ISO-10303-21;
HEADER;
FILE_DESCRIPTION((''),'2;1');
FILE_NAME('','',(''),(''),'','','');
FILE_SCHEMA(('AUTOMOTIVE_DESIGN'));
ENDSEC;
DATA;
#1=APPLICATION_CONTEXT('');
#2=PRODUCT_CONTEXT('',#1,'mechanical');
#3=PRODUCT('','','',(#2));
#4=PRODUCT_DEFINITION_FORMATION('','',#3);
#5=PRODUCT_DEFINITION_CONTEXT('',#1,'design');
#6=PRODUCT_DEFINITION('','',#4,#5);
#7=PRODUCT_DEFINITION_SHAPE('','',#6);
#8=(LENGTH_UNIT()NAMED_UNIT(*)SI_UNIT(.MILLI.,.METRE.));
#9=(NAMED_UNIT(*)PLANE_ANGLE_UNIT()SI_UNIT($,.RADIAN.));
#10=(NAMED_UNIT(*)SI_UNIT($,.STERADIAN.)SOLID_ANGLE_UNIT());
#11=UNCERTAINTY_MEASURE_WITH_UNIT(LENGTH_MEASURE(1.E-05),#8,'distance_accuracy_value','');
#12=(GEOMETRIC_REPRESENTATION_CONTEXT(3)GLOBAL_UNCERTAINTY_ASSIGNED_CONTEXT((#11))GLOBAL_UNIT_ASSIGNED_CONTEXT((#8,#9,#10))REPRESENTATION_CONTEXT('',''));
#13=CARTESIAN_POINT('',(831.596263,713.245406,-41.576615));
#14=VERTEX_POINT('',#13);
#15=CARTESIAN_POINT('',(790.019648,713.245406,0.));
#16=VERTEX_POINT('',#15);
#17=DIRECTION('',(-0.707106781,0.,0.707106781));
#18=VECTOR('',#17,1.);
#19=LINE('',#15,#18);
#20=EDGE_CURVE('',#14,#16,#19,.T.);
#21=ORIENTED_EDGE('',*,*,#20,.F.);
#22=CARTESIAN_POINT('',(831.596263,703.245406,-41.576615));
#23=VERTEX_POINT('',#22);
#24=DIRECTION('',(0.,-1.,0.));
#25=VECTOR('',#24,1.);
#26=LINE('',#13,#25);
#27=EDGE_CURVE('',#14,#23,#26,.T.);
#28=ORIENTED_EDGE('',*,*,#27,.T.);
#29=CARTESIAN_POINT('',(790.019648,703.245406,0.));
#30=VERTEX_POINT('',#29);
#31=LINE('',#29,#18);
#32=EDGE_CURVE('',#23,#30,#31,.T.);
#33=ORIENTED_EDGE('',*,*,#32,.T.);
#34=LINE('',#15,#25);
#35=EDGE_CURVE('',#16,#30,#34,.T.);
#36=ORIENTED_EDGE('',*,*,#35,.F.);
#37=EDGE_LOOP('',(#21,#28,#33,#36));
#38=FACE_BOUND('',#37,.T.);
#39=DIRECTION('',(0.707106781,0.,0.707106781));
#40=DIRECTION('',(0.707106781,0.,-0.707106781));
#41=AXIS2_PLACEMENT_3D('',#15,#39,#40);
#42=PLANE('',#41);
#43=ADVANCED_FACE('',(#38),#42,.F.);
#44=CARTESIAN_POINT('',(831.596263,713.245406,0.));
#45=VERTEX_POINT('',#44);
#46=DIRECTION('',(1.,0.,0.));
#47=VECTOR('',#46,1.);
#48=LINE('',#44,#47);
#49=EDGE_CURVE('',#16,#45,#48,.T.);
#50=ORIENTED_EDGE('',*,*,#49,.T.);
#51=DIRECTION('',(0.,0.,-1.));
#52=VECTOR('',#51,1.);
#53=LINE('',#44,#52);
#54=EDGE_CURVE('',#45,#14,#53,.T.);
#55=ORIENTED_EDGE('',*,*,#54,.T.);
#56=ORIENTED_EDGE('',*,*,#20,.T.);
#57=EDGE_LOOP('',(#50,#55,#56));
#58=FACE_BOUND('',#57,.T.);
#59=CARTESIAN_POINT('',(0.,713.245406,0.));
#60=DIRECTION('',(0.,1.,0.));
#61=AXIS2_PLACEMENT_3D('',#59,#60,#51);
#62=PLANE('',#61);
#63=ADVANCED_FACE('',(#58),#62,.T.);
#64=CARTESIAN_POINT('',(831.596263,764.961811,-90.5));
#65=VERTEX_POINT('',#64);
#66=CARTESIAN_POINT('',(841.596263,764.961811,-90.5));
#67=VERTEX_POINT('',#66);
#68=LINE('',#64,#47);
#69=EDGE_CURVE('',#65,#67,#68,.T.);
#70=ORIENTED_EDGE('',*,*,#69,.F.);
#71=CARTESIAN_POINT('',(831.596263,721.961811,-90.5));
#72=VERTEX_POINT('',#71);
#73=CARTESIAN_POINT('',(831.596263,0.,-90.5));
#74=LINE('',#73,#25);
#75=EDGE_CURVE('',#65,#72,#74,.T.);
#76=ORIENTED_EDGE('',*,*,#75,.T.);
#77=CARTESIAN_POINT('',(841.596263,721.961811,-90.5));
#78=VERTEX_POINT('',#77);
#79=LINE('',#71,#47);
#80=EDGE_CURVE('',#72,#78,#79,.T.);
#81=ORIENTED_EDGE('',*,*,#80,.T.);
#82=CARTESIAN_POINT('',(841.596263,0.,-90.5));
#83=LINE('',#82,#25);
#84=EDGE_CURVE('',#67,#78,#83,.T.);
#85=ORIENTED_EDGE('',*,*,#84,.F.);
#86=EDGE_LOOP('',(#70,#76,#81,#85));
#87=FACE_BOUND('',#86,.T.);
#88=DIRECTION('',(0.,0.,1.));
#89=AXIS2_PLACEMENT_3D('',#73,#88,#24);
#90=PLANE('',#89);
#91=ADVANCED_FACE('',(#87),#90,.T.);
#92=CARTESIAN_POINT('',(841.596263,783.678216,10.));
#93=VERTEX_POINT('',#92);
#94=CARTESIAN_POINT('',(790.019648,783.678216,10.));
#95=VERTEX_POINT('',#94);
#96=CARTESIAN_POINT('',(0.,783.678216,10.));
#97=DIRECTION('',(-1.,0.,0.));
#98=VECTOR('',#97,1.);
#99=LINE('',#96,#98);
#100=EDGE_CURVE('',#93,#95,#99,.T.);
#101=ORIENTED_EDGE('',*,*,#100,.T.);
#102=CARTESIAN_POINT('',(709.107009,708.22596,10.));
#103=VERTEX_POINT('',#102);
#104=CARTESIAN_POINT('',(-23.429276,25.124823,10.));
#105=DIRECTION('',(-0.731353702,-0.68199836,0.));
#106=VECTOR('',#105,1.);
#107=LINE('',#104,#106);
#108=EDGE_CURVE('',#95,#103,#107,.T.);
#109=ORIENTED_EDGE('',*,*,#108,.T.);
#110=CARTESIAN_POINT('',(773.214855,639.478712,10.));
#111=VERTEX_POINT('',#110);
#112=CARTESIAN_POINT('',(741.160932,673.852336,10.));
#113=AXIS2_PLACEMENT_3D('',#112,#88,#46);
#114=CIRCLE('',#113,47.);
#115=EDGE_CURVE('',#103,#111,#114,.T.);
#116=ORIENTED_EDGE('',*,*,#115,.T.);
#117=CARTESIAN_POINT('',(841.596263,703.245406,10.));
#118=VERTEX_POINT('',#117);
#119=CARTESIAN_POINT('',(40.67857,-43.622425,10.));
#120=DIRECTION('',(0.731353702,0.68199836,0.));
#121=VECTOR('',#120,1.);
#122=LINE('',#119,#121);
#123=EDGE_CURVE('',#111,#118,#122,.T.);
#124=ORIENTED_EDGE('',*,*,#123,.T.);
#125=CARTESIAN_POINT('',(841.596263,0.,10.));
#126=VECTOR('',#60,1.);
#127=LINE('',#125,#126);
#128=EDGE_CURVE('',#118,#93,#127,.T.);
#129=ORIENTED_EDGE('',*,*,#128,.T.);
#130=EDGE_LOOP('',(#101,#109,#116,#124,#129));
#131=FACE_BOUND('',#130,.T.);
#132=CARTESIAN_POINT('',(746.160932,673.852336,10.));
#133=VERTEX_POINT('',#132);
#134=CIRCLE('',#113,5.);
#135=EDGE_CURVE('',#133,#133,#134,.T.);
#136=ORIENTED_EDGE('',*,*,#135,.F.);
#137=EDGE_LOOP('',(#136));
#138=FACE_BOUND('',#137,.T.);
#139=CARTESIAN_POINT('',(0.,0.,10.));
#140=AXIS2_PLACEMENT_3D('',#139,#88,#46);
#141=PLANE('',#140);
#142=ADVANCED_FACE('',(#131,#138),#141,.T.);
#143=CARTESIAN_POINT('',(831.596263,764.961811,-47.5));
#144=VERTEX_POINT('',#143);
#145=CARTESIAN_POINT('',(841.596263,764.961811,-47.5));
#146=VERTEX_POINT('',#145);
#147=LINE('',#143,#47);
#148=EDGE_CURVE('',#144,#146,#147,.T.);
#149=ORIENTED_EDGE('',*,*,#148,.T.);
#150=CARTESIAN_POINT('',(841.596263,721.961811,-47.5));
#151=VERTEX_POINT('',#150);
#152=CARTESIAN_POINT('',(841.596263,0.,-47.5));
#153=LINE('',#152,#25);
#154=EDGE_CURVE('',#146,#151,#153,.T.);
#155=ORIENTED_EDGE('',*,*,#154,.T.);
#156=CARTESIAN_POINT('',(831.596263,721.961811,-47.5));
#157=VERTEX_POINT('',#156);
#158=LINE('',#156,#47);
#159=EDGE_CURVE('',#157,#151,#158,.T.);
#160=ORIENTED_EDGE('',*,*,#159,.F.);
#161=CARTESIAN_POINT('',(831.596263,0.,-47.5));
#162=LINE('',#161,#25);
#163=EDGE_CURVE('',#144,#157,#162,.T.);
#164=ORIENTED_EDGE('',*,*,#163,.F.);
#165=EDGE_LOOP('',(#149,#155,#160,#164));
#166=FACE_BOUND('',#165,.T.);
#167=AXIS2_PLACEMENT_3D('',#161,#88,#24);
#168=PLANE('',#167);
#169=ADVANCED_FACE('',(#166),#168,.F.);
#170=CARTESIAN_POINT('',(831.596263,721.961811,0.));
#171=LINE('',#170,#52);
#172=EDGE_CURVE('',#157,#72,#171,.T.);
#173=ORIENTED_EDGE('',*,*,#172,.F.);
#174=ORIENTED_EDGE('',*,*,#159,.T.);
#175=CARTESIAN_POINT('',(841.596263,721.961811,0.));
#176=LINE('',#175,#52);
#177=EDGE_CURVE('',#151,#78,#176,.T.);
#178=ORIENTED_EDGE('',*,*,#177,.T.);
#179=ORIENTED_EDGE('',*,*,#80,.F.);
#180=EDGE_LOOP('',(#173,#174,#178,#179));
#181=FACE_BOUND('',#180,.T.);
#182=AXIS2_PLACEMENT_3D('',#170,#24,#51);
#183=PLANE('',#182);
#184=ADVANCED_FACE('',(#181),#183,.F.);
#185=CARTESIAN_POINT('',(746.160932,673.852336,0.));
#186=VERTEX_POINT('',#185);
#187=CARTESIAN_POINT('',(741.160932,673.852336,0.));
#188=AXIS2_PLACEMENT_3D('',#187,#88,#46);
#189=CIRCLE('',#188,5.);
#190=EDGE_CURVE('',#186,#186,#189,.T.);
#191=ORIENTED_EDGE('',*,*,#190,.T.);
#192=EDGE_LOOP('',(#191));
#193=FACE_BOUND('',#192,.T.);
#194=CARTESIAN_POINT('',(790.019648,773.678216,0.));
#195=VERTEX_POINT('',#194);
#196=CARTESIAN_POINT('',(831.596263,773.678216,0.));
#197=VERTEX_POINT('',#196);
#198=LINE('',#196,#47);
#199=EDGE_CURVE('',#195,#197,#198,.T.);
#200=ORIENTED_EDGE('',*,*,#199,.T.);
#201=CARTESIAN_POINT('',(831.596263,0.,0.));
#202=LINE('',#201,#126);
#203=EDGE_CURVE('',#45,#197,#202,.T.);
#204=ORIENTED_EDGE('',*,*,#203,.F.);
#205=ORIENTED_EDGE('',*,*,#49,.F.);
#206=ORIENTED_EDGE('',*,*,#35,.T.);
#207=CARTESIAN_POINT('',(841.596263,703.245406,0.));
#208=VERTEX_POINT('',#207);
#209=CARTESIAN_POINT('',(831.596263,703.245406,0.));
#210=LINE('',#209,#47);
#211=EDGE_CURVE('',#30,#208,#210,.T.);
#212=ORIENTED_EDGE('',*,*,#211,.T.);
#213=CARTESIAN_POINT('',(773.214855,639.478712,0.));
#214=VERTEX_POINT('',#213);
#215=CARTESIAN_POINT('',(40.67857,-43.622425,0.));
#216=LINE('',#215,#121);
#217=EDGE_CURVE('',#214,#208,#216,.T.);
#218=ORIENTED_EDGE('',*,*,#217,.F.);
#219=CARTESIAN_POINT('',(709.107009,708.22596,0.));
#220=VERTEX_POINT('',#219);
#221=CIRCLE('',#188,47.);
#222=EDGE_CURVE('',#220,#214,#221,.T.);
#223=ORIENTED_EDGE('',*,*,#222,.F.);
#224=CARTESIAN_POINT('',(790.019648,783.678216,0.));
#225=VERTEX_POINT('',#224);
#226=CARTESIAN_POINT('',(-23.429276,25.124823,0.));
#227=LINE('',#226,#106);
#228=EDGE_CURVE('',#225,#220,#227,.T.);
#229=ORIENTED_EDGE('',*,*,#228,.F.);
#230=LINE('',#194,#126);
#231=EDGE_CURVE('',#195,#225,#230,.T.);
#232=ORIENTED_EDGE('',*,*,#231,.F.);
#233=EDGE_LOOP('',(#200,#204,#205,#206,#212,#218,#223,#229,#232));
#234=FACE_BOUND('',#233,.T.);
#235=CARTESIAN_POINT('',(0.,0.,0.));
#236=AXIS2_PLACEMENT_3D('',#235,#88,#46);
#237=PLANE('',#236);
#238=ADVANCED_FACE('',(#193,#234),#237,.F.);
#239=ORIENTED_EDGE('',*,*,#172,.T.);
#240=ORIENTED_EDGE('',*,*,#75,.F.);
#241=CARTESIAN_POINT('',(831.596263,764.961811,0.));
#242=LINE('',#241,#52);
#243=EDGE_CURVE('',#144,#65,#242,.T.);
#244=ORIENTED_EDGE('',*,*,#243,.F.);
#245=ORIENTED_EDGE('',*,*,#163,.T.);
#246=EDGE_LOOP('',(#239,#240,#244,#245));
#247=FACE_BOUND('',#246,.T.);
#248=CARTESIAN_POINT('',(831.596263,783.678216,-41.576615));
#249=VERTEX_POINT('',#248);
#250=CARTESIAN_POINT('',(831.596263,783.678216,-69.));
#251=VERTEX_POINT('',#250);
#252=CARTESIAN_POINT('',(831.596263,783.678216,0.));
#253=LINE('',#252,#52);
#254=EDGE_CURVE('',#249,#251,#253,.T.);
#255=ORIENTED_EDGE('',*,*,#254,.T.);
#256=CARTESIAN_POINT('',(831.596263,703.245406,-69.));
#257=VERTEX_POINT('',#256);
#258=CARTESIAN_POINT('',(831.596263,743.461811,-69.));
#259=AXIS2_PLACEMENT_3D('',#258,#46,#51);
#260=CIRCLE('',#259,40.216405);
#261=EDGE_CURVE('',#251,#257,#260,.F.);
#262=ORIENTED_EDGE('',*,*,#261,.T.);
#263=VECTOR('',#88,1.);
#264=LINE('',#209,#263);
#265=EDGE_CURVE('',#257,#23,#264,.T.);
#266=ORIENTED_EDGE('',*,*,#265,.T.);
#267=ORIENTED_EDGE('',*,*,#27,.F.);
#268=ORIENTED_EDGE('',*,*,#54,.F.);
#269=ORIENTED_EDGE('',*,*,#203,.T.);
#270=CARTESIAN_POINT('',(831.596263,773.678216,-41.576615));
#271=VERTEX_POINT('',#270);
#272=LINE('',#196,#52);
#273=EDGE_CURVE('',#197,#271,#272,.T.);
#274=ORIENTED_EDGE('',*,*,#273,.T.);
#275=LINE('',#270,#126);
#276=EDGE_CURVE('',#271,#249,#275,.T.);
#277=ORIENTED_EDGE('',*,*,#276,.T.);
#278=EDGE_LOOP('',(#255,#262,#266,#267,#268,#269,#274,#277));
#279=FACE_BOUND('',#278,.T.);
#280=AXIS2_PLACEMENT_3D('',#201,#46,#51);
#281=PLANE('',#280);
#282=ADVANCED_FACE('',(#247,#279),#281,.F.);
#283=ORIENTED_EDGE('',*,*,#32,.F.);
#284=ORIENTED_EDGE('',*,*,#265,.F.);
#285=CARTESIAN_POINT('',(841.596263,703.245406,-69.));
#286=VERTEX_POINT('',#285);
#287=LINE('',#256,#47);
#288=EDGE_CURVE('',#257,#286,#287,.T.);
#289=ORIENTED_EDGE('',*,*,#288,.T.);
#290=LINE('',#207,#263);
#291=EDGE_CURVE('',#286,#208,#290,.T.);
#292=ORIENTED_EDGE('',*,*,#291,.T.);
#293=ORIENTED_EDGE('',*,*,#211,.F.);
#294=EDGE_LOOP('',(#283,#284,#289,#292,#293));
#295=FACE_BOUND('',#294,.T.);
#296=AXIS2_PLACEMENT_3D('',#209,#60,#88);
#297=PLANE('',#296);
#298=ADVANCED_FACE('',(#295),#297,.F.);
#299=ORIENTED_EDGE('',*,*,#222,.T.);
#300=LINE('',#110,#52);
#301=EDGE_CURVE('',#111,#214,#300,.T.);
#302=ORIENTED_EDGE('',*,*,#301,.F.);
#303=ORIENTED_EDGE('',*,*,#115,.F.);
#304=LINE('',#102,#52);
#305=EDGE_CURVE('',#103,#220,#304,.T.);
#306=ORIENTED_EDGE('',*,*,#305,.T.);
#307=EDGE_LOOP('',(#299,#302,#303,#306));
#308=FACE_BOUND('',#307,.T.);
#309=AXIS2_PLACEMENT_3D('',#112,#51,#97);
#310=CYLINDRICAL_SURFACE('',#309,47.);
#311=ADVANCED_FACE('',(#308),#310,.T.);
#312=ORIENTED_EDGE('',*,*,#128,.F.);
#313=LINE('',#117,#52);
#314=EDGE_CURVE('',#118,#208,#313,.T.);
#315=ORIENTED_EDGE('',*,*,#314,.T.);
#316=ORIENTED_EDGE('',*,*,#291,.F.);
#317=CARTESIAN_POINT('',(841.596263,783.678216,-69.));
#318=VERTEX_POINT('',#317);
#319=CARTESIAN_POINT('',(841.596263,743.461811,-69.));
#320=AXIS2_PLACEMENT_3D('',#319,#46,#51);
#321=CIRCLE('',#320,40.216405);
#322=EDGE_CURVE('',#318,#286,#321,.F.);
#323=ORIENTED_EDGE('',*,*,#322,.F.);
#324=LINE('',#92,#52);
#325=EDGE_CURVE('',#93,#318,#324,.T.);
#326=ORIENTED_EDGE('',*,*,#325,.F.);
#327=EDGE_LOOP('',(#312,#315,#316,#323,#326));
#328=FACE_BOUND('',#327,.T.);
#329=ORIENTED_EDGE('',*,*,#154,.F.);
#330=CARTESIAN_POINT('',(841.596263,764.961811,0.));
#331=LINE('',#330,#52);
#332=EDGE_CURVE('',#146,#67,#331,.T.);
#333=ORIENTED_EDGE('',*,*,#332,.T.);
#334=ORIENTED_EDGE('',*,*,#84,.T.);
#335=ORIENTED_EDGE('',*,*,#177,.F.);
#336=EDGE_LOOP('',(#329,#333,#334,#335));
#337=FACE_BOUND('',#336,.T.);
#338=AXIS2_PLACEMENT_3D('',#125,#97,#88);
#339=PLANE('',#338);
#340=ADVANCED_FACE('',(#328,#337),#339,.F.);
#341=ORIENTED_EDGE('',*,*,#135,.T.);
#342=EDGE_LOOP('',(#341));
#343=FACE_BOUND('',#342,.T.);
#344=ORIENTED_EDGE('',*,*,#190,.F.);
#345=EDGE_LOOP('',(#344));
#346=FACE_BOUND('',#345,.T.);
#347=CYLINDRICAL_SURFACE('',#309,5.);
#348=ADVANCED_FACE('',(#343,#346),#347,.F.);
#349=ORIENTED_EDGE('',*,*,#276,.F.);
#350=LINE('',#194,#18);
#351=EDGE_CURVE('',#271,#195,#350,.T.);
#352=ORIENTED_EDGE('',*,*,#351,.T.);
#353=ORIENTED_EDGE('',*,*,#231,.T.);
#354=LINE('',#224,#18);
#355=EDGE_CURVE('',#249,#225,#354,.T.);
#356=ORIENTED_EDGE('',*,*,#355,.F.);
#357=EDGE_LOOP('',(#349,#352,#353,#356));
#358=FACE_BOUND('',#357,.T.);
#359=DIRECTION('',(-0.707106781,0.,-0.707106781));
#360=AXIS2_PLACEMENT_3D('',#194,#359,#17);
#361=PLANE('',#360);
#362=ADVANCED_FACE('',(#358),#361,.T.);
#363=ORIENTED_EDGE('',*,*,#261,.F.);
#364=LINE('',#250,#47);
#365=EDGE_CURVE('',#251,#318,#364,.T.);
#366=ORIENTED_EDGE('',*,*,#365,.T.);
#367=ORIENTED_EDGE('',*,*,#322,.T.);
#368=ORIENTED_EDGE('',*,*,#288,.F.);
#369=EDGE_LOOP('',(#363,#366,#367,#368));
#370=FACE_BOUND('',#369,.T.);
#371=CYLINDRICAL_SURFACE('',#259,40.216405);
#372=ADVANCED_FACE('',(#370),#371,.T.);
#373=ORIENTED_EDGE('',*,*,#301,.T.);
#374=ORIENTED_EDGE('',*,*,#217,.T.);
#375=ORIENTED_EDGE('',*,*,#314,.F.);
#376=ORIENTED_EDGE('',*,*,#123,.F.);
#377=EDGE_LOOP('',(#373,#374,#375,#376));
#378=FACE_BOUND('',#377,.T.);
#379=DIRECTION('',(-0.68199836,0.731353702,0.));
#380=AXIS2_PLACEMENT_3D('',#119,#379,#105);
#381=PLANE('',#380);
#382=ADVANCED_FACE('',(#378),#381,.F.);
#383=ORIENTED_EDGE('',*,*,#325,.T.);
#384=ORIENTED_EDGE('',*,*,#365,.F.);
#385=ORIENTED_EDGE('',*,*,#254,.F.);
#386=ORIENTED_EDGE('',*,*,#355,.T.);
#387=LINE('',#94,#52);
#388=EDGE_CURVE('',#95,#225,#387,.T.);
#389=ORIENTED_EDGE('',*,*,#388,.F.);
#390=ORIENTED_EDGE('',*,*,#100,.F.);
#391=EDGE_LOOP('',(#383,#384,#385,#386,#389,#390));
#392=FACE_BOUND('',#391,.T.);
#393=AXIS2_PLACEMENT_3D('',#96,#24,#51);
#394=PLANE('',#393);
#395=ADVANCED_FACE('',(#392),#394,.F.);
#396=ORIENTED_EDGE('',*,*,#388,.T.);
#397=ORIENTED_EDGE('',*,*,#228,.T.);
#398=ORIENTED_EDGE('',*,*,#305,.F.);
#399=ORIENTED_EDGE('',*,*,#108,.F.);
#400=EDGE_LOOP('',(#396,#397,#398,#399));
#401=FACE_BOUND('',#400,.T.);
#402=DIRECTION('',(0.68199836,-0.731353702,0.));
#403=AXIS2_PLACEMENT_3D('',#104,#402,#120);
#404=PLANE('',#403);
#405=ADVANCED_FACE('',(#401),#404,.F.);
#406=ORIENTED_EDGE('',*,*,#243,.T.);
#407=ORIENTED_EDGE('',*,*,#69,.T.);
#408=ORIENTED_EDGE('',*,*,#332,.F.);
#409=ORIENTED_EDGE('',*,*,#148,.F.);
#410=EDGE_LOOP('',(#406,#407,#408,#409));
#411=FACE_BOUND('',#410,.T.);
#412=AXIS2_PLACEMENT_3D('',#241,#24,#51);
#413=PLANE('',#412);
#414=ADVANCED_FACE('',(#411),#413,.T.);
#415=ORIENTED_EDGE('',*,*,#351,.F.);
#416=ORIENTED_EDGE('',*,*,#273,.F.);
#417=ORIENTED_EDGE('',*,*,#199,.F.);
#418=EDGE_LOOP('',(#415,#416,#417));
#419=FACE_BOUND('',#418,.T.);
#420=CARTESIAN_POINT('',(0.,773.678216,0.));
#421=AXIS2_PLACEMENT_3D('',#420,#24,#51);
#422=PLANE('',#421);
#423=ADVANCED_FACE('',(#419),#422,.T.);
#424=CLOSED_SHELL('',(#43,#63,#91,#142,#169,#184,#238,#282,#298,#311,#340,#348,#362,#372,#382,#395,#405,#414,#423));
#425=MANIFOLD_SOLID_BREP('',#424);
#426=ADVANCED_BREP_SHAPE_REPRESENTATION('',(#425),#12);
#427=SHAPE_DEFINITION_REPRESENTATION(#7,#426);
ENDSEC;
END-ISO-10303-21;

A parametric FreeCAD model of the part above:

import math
import FreeCAD as App
import Part
import Sketcher

V = App.Vector
Q = App.Units.Quantity

doc = App.newDocument("Part")
body = doc.addObject("PartDesign::Body", "Body")

# Sketch on XY plane
sketch1 = body.newObject("Sketcher::SketchObject", "Sketch")
sketch1.AttachmentSupport = (doc.getObject("XY_Plane"), [""])
sketch1.MapMode = "FlatFace"
sketch1.addGeometry([
    Part.LineSegment(V(790.019648, 783.678216, 0), V(709.107009, 708.22596, 0)),  # 0
    Part.ArcOfCircle(Part.Circle(V(741.160932, 673.852336, 0), V(0, 0, 1), 47), math.radians(133), math.radians(313)),  # 1
    Part.LineSegment(V(773.214855, 639.478712, 0), V(841.596263, 703.245406, 0)),  # 2
    Part.LineSegment(V(841.596263, 703.245406, 0), V(841.596263, 783.678216, 0)),  # 3
    Part.LineSegment(V(841.596263, 783.678216, 0), V(790.019648, 783.678216, 0)),  # 4
    Part.Circle(V(741.160932, 673.852336, 0), V(0, 0, 1), 5),  # 5
], False)
sketch1.addConstraint([
    Sketcher.Constraint("Tangent", 0, 2, 1, 1),
    Sketcher.Constraint("Tangent", 1, 2, 2, 1),
    Sketcher.Constraint("Coincident", 2, 2, 3, 1),
    Sketcher.Constraint("Coincident", 3, 2, 4, 1),
    Sketcher.Constraint("Coincident", 4, 2, 0, 1),
    Sketcher.Constraint("Vertical", 3),
    Sketcher.Constraint("Horizontal", 4),
    Sketcher.Constraint("Coincident", 5, 3, 1, 3),
    Sketcher.Constraint("Parallel", 0, 2),
    Sketcher.Constraint("Diameter", 5, Q("10 mm")),
    Sketcher.Constraint("Radius", 1, Q("47 mm")),
    Sketcher.Constraint("Angle", 0, Q("-137 deg")),
    Sketcher.Constraint("DistanceY", 3, 1, 3, 2, Q("80.43281 mm")),
    Sketcher.Constraint("DistanceX", -1, 1, 0, 2, Q("709.107009 mm")),
    Sketcher.Constraint("DistanceY", -1, 1, 0, 2, Q("708.22596 mm")),
    Sketcher.Constraint("DistanceX", 1, 3, 2, 2, Q("100.43533 mm")),
])
pad1 = body.newObject("PartDesign::Pad", "Pad")
pad1.Profile = sketch1
pad1.Length = 10

# Sketch on YZ plane
sketch2 = body.newObject("Sketcher::SketchObject", "Sketch001")
sketch2.AttachmentSupport = (doc.getObject("YZ_Plane"), [""])
sketch2.MapMode = "FlatFace"
sketch2.AttachmentOffset = App.Placement(V(0, 0, 841.596263), App.Rotation())
sketch2.addGeometry([
    Part.LineSegment(V(783.678216, -69, 0), V(783.678216, 0, 0)),  # 0
    Part.LineSegment(V(783.678216, 0, 0), V(703.245406, 0, 0)),  # 1
    Part.LineSegment(V(703.245406, 0, 0), V(703.245406, -69, 0)),  # 2
    Part.ArcOfCircle(Part.Circle(V(743.461811, -69, 0), V(0, 0, 1), 40.216405), math.radians(180), math.radians(360)),  # 3
    Part.LineSegment(V(721.961811, -90.5, 0), V(721.961811, -47.5, 0)),  # 4
    Part.LineSegment(V(721.961811, -47.5, 0), V(764.961811, -47.5, 0)),  # 5
    Part.LineSegment(V(764.961811, -47.5, 0), V(764.961811, -90.5, 0)),  # 6
    Part.LineSegment(V(764.961811, -90.5, 0), V(721.961811, -90.5, 0)),  # 7
], False)
sketch2.addConstraint([
    Sketcher.Constraint("Coincident", 0, 2, 1, 1),
    Sketcher.Constraint("Coincident", 1, 2, 2, 1),
    Sketcher.Constraint("Tangent", 2, 2, 3, 1),
    Sketcher.Constraint("Tangent", 3, 2, 0, 1),
    Sketcher.Constraint("Coincident", 4, 2, 5, 1),
    Sketcher.Constraint("Coincident", 5, 2, 6, 1),
    Sketcher.Constraint("Coincident", 6, 2, 7, 1),
    Sketcher.Constraint("Coincident", 7, 2, 4, 1),
    Sketcher.Constraint("Vertical", 0),
    Sketcher.Constraint("Horizontal", 1),
    Sketcher.Constraint("Vertical", 2),
    Sketcher.Constraint("Vertical", 4),
    Sketcher.Constraint("Horizontal", 5),
    Sketcher.Constraint("Vertical", 6),
    Sketcher.Constraint("Horizontal", 7),
    Sketcher.Constraint("PointOnObject", 0, 2, -1),
    Sketcher.Constraint("Equal", 7, 4),
    Sketcher.Constraint("DistanceX", 5, 1, 5, 2, Q("43 mm")),
    Sketcher.Constraint("DistanceY", 0, 1, 0, 2, Q("69 mm")),
    Sketcher.Constraint("DistanceY", 4, 2, -1, 1, Q("47.5 mm")),
    Sketcher.Constraint("DistanceX", 4, 2, 3, 3, Q("21.5 mm")),
    Sketcher.Constraint("Radius", 3, Q("40.216405 mm")),
    Sketcher.Constraint("DistanceX", -1, 1, 3, 3, Q("743.461811 mm")),
])
pad2 = body.newObject("PartDesign::Pad", "Pad001")
pad2.Profile = sketch2
pad2.Length = 10
pad2.Reversed = True

# Sketch on XZ plane
sketch3 = body.newObject("Sketcher::SketchObject", "Sketch002")
sketch3.AttachmentSupport = (doc.getObject("XZ_Plane"), [""])
sketch3.MapMode = "FlatFace"
sketch3.AttachmentOffset = App.Placement(V(0, 0, -783.678216), App.Rotation())
sketch3.addGeometry([
    Part.LineSegment(V(831.596263, -41.576615, 0), V(790.019648, 0, 0)),
    Part.LineSegment(V(790.019648, 0, 0), V(831.596263, 0, 0)),
    Part.LineSegment(V(831.596263, 0, 0), V(831.596263, -41.576615, 0)),
], False)
sketch3.addConstraint([
    Sketcher.Constraint("Coincident", 0, 2, 1, 1),
    Sketcher.Constraint("Coincident", 1, 2, 2, 1),
    Sketcher.Constraint("Coincident", 2, 2, 0, 1),
    Sketcher.Constraint("Horizontal", 1),
    Sketcher.Constraint("Vertical", 2),
    Sketcher.Constraint("PointOnObject", 0, 2, -1),
    Sketcher.Constraint("Equal", 1, 2),
    Sketcher.Constraint("DistanceX", 1, 1, 1, 2, Q("41.576615 mm")),
    Sketcher.Constraint("DistanceX", -1, 1, 0, 2, Q("790.019648 mm")),
])
pad3 = body.newObject("PartDesign::Pad", "Pad002")
pad3.Profile = sketch3
pad3.Length = 10
doc.recompute()

datumplane = body.newObject("PartDesign::Plane", "DatumPlane")
datumplane.AttachmentSupport = (doc.getObject("XZ_Plane"), [""])
datumplane.MapMode = "FlatFace"
datumplane.AttachmentOffset = App.Placement(V(0, 0, -743.461811), App.Rotation())
mirrored = body.newObject("PartDesign::Mirrored", "Mirrored")
mirrored.Originals = [pad3]
mirrored.MirrorPlane = (datumplane, [""])
body.Tip = mirrored

doc.recompute()
